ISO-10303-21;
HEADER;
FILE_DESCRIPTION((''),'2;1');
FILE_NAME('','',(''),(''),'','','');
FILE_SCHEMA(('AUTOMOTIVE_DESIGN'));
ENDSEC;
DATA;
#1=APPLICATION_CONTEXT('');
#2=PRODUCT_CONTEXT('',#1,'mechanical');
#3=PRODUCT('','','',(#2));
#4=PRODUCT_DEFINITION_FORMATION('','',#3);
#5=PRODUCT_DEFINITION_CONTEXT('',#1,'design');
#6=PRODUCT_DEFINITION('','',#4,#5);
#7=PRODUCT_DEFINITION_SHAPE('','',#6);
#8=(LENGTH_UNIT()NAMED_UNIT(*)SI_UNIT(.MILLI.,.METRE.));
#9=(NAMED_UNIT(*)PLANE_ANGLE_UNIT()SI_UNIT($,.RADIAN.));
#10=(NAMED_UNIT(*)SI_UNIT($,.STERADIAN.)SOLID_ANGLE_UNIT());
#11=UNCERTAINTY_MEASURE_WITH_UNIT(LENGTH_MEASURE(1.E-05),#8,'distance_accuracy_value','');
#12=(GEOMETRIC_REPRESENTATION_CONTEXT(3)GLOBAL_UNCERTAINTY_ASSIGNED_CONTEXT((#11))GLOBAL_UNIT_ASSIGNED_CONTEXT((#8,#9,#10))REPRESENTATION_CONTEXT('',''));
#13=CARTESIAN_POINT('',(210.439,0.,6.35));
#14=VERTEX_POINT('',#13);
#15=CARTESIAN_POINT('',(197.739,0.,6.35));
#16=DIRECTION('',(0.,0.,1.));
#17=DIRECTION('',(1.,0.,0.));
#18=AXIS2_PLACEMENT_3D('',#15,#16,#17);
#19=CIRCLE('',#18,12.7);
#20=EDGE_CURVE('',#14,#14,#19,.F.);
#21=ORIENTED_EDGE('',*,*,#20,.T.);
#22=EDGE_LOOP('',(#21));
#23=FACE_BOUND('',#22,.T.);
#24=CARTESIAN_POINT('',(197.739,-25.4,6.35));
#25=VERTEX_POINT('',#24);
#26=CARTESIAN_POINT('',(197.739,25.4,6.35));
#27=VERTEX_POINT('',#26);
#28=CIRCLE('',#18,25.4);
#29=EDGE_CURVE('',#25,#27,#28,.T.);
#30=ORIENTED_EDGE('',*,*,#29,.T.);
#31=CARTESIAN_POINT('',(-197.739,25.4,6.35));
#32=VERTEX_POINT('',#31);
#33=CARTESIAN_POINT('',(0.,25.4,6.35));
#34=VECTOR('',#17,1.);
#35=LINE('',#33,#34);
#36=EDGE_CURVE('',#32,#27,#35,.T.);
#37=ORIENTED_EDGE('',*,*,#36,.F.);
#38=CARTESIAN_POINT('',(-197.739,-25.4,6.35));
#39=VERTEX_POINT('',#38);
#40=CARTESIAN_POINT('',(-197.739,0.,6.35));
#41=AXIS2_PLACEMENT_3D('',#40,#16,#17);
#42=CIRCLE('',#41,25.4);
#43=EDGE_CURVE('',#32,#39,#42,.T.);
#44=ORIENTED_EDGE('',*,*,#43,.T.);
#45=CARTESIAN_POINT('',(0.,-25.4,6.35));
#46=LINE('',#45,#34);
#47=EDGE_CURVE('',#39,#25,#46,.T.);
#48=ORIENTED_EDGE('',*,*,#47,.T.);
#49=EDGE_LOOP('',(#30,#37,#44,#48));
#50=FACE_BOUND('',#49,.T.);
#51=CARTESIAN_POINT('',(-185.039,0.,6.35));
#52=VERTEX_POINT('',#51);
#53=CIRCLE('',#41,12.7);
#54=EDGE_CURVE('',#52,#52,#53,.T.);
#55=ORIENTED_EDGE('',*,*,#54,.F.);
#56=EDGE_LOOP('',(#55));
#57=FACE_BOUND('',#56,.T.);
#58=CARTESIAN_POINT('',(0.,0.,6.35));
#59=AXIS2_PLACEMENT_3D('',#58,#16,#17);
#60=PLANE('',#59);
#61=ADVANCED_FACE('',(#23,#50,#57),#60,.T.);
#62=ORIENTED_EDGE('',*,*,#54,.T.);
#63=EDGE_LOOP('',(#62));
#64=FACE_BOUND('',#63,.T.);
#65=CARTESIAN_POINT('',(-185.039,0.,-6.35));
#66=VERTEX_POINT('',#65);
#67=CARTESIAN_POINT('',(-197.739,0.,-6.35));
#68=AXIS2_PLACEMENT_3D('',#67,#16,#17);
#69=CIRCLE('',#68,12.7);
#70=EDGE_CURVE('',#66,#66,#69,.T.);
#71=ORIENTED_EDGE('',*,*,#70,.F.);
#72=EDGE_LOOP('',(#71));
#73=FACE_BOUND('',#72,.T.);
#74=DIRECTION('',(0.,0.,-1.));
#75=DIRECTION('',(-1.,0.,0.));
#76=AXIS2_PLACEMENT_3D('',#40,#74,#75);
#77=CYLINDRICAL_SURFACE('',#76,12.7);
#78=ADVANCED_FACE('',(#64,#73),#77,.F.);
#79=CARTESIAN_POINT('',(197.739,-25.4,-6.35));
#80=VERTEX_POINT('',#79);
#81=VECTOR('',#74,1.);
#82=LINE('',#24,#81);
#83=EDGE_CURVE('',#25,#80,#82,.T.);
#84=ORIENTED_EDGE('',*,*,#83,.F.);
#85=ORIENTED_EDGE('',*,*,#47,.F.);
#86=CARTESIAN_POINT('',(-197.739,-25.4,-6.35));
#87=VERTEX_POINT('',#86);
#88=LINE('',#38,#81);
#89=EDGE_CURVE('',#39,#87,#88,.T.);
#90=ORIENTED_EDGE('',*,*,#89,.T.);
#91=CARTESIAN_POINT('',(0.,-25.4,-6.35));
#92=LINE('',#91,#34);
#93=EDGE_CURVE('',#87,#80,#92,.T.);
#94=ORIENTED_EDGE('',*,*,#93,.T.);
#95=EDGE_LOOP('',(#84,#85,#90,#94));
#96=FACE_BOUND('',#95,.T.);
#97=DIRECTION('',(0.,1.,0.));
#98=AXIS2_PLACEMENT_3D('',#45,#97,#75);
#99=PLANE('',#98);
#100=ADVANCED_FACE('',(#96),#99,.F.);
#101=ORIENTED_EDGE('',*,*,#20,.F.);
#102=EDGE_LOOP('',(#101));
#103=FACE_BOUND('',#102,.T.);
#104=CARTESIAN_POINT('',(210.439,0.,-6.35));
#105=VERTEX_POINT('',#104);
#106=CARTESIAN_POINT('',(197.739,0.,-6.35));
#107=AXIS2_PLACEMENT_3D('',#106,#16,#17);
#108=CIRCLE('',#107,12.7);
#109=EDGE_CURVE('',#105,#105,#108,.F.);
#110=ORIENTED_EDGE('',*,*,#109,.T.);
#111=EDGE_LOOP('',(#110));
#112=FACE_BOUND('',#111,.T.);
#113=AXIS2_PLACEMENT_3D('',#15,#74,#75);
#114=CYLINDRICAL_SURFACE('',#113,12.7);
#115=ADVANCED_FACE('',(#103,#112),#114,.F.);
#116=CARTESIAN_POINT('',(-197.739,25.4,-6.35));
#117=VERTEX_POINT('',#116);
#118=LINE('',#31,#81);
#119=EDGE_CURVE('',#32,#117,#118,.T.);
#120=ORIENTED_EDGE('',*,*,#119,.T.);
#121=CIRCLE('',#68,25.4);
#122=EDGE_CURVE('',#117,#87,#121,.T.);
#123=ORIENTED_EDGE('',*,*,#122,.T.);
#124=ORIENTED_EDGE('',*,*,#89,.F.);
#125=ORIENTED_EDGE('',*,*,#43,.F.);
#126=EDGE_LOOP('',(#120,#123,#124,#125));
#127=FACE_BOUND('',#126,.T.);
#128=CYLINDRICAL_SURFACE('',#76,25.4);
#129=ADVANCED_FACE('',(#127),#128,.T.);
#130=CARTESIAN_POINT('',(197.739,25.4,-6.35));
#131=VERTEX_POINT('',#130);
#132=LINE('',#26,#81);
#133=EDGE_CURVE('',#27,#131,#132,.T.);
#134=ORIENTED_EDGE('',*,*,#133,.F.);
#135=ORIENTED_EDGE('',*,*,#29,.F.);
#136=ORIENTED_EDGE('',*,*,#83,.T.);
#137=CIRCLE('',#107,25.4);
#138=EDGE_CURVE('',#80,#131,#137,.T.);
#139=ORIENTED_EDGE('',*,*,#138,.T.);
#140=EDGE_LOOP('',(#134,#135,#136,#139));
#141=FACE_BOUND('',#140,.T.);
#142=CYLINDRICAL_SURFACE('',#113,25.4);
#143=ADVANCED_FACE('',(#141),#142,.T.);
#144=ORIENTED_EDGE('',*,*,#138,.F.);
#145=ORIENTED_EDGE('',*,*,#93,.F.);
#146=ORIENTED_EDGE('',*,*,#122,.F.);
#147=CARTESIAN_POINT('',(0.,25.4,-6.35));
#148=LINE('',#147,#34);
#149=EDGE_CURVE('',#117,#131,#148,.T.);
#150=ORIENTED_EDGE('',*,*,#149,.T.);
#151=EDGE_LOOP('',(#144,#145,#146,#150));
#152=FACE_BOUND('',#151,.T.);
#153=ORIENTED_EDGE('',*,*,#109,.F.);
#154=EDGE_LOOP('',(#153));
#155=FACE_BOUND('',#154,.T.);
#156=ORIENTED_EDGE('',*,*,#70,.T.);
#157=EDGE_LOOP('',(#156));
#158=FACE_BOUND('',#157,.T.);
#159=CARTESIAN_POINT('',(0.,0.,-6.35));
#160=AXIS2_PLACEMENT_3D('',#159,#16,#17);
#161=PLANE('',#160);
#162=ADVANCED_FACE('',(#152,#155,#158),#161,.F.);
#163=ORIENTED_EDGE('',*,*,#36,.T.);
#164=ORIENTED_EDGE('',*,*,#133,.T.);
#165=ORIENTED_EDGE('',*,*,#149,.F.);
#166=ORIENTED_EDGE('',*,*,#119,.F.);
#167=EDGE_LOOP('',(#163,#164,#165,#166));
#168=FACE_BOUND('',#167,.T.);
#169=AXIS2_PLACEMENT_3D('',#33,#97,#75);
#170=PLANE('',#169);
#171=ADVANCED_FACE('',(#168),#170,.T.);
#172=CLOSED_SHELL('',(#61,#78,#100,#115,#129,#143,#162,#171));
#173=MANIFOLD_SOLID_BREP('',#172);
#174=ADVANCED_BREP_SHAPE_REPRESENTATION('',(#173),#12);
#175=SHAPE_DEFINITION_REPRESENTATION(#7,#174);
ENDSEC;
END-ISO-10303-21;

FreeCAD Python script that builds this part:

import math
import FreeCAD as App
import Part
import Sketcher

V = App.Vector
Q = App.Units.Quantity

doc = App.newDocument("Part")
body = doc.addObject("PartDesign::Body", "Body")

sketch1 = body.newObject("Sketcher::SketchObject", "Sketch")
sketch1.AttachmentSupport = (doc.getObject("XY_Plane"), [""])
sketch1.MapMode = "FlatFace"
sketch1.addGeometry([
    Part.LineSegment(V(197.739, 25.4, 0), V(-197.739, 25.4, 0)),
    Part.ArcOfCircle(Part.Circle(V(-197.739, 0, 0), V(0, 0, 1), 25.4), math.radians(90), math.radians(270)),
    Part.LineSegment(V(-197.739, -25.4, 0), V(197.739, -25.4, 0)),
    Part.ArcOfCircle(Part.Circle(V(197.739, 0, 0), V(0, 0, 1), 25.4), math.radians(-90), math.radians(90)),
    Part.Circle(V(197.739, 0, 0), V(0, 0, 1), 12.7),
    Part.Circle(V(-197.739, 0, 0), V(0, 0, 1), 12.7),
], False)
sketch1.addConstraint([
    Sketcher.Constraint("Tangent", 0, 2, 1, 1),
    Sketcher.Constraint("Tangent", 1, 2, 2, 1),
    Sketcher.Constraint("Tangent", 2, 2, 3, 1),
    Sketcher.Constraint("Tangent", 3, 2, 0, 1),
    Sketcher.Constraint("Horizontal", 0),
    Sketcher.Constraint("Horizontal", 2),
    Sketcher.Constraint("Coincident", 4, 3, 3, 3),
    Sketcher.Constraint("Coincident", 5, 3, 1, 3),
    Sketcher.Constraint("Equal", 4, 5),
    Sketcher.Constraint("Symmetric", 1, 3, 3, 3, -1, 1),
    Sketcher.Constraint("Diameter", 4, Q("1 in")),
    Sketcher.Constraint("Radius", 1, Q("1 in")),
    Sketcher.Constraint("DistanceX", 0, 2, 0, 1, Q("15.57 in")),
])
pad1 = body.newObject("PartDesign::Pad", "Pad")
pad1.Profile = sketch1
pad1.Length = Q("0.5 in")
pad1.Midplane = True

doc.recompute()
